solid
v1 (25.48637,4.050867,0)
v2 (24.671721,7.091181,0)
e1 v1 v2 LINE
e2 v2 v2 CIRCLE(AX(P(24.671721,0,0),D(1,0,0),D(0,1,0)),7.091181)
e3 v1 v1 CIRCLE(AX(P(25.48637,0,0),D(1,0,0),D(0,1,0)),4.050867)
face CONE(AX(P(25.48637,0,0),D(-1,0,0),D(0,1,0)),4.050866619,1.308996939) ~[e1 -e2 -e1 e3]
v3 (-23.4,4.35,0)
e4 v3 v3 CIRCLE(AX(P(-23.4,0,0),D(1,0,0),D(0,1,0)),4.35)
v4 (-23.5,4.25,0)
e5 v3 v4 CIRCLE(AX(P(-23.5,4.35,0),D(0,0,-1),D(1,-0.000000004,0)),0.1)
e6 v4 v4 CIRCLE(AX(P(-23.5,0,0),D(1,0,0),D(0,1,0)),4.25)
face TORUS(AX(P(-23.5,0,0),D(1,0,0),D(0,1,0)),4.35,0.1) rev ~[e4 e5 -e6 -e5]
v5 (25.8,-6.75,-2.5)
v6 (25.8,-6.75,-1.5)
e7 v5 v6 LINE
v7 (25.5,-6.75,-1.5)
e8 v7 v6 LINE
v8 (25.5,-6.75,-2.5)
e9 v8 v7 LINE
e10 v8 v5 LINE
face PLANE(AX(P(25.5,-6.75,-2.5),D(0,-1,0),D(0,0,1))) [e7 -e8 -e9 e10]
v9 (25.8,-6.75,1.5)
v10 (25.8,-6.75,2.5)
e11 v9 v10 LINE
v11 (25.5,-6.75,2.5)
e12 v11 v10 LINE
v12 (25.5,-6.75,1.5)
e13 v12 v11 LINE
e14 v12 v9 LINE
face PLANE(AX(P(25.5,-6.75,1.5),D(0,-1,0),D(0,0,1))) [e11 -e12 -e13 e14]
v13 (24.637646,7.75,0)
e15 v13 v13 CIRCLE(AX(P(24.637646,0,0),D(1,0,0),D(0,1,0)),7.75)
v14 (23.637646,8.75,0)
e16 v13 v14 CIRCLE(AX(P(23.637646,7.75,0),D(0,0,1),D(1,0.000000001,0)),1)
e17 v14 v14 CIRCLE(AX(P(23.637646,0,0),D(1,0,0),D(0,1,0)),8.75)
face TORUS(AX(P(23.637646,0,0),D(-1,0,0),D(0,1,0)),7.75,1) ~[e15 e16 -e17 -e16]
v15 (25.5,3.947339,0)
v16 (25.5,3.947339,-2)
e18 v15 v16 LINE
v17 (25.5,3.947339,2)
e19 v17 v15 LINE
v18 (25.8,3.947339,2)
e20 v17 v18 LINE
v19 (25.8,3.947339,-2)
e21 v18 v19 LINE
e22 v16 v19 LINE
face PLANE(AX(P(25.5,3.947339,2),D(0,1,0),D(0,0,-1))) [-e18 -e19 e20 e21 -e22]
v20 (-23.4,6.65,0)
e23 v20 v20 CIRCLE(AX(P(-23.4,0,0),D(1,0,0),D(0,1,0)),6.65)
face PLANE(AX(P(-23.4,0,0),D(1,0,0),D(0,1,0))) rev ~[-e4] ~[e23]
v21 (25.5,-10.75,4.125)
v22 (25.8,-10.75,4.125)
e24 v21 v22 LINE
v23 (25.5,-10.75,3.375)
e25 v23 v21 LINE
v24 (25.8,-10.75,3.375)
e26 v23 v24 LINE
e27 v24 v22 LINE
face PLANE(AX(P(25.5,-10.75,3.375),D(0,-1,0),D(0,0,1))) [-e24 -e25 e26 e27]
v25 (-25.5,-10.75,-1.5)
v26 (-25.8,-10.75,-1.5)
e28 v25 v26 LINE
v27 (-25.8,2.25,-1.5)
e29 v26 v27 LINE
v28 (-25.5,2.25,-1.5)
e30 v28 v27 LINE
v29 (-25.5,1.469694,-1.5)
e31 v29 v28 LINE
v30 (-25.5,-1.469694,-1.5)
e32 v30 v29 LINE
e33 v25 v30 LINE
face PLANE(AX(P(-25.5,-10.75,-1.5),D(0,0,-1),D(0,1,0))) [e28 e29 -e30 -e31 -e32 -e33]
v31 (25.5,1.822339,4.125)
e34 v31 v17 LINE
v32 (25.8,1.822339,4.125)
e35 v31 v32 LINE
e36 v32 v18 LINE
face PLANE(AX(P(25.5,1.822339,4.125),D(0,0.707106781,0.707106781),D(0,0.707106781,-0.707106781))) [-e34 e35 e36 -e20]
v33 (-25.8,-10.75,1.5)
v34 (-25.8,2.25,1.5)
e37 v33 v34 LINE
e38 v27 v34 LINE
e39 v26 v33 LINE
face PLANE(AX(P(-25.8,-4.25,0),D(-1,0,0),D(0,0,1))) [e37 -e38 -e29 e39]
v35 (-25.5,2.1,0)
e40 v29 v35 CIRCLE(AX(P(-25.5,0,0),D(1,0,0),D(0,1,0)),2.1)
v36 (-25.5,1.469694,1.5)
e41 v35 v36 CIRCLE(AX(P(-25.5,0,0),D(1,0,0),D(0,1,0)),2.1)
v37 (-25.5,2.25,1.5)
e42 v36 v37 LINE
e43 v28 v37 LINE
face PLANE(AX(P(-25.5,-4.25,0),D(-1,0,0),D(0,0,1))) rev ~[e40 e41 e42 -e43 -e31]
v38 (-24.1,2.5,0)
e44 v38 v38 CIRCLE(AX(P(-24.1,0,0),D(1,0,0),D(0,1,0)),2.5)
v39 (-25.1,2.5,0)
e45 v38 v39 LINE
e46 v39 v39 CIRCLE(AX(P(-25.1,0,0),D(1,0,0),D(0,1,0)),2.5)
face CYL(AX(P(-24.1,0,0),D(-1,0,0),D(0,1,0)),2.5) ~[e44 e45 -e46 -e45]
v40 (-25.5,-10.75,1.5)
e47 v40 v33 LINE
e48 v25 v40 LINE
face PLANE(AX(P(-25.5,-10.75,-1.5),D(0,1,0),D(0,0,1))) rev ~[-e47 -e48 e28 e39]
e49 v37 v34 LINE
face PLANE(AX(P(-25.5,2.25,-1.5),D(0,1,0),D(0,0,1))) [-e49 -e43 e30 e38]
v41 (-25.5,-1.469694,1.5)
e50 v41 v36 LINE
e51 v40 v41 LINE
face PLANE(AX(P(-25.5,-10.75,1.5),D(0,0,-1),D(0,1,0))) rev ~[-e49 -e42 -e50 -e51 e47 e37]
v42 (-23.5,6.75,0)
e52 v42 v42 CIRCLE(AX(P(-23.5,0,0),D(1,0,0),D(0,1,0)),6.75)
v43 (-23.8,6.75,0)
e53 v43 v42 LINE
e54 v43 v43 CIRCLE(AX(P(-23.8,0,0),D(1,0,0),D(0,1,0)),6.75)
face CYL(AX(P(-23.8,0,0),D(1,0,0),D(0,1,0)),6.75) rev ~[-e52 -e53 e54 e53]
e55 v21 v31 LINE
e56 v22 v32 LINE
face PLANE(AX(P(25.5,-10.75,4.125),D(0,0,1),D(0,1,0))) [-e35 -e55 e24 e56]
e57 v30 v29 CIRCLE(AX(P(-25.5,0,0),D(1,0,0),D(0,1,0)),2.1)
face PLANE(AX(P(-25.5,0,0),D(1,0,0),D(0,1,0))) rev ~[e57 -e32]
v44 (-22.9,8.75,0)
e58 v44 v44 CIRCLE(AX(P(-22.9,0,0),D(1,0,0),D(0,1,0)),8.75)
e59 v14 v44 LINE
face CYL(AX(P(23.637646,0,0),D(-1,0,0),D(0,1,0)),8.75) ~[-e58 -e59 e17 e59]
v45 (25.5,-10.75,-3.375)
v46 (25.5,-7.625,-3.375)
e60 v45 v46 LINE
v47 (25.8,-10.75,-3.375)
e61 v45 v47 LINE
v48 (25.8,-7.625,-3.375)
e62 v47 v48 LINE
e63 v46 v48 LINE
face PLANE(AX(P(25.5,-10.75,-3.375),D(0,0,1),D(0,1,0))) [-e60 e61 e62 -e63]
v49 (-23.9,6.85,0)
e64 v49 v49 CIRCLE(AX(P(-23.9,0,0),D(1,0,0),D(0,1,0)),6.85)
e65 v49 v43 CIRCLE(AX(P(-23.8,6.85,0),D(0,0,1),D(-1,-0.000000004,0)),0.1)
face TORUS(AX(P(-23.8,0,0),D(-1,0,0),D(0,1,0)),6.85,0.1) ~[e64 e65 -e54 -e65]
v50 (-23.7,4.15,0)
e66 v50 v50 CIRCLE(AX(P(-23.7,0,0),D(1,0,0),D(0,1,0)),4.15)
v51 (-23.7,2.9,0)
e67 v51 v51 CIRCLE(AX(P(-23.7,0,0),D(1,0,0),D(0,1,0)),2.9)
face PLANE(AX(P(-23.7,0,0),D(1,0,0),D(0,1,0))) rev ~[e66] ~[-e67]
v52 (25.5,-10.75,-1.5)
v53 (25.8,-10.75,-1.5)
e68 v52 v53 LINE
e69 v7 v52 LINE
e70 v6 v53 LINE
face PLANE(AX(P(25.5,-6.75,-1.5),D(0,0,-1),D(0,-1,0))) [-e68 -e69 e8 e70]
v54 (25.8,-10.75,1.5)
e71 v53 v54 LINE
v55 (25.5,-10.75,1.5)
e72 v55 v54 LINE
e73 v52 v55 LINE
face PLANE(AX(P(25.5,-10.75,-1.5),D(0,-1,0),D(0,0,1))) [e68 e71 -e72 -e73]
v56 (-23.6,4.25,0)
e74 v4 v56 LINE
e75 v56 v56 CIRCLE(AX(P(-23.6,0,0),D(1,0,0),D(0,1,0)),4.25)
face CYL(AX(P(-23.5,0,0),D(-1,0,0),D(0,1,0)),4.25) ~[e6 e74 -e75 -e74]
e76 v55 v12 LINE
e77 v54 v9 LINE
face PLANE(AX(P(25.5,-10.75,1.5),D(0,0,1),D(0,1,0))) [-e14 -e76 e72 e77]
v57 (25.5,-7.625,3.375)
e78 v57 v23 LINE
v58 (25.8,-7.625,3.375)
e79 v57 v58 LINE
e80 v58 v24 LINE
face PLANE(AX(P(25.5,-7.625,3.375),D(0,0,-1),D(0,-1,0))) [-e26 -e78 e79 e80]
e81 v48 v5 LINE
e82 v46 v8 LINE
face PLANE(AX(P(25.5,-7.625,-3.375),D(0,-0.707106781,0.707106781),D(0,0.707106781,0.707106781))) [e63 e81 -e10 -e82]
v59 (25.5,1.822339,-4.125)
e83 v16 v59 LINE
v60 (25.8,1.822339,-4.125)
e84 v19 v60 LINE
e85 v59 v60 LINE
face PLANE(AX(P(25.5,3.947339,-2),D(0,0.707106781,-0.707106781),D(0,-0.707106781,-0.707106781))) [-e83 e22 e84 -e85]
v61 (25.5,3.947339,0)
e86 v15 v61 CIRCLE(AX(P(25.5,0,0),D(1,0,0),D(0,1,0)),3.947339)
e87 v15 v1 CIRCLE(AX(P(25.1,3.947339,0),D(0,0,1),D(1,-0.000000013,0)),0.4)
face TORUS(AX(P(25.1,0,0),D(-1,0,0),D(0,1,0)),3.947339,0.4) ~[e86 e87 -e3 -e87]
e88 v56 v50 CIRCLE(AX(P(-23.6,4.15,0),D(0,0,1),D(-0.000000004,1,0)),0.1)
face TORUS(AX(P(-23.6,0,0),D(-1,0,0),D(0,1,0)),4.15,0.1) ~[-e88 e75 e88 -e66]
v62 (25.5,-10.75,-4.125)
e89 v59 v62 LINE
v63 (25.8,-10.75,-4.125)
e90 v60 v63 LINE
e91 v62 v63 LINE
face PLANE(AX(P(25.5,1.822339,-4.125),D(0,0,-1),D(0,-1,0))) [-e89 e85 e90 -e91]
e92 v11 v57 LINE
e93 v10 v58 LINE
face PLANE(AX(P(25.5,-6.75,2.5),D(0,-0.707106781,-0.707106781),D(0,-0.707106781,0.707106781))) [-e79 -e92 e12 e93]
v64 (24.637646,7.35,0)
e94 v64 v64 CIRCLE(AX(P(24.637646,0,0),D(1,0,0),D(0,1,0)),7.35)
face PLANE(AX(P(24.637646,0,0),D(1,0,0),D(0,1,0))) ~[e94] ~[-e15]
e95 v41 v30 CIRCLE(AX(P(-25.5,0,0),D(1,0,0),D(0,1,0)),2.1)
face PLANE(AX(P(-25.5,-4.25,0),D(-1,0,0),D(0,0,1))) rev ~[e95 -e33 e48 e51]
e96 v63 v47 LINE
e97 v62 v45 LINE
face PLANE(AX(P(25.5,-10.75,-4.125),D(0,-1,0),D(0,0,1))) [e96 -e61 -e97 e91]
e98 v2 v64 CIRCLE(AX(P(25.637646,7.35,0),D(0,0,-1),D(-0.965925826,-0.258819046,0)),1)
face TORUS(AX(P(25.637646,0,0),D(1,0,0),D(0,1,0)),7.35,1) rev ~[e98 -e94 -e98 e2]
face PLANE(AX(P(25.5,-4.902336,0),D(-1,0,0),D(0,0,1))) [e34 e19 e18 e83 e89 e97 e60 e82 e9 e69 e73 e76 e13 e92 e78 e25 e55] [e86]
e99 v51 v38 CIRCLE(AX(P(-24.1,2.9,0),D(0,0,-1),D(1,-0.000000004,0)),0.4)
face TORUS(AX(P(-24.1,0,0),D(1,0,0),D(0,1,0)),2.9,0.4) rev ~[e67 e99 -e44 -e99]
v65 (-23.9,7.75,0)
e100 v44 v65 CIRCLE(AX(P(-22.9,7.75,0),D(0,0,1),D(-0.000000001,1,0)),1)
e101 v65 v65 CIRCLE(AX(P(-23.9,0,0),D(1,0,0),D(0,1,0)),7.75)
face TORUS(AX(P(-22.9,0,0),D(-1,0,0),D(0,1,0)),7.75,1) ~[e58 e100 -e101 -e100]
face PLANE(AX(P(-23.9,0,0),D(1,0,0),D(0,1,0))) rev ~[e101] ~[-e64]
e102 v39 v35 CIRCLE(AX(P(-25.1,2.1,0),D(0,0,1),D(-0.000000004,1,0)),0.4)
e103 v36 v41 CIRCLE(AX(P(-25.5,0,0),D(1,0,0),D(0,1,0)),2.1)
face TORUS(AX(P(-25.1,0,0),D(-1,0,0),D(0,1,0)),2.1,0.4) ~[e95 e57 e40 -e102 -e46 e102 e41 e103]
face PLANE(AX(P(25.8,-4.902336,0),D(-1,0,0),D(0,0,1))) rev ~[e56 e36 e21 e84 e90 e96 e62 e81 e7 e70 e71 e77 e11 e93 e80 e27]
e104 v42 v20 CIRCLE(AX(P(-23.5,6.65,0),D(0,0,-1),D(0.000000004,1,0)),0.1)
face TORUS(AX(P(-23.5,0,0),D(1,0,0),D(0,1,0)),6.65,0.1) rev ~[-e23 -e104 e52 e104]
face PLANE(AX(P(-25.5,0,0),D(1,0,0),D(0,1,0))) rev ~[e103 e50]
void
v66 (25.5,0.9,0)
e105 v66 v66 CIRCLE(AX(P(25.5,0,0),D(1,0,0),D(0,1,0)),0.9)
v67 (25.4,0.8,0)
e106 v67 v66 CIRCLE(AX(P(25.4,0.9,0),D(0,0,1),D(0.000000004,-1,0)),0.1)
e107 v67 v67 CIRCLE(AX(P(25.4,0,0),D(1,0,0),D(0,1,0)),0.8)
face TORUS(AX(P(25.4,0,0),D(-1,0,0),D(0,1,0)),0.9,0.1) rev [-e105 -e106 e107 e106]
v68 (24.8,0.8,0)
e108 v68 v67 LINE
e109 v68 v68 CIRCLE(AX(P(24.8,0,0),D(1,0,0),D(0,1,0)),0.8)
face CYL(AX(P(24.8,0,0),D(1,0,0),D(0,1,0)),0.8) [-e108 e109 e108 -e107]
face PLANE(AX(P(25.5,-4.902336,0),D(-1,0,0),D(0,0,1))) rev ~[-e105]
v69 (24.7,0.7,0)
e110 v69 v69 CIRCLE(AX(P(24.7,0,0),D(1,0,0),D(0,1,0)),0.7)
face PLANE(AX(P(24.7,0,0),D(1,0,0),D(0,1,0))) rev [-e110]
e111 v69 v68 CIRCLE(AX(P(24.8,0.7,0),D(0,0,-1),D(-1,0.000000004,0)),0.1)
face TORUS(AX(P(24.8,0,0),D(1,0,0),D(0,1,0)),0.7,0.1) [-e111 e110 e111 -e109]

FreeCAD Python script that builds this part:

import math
import FreeCAD as App
import Part
import Sketcher
Q = App.Units.Quantity

doc = App.newDocument("Part")
body = doc.addObject("PartDesign::Body", "Body")

# Sketch on XY plane
sketch1 = body.newObject("Sketcher::SketchObject", "Sketch")
sketch1.AttachmentSupport = (doc.getObject("XY_Plane"), [""])
sketch1.MapMode = "FlatFace"
sketch1.addGeometry([
    Part.LineSegment(App.Vector(-25.5, 0, 0), App.Vector(24.7, 0, 0)),  # 0
    Part.LineSegment(App.Vector(24.7, 0, 0), App.Vector(24.7, 0.7, 0)),  # 1
    Part.ArcOfCircle(Part.Circle(App.Vector(24.8, 0.7, 0), App.Vector(0, 0, 1), 0.1), math.radians(90), math.radians(180)),  # 2
    Part.LineSegment(App.Vector(24.8, 0.8, 0), App.Vector(25.4, 0.8, 0)),  # 3
    Part.ArcOfCircle(Part.Circle(App.Vector(25.4, 0.9, 0), App.Vector(0, 0, 1), 0.1), math.radians(-90), math.radians(0)),  # 4
    Part.LineSegment(App.Vector(25.5, 0.9, 0), App.Vector(25.5, 3.95, 0)),  # 5
    Part.ArcOfCircle(Part.Circle(App.Vector(25.1, 3.95, 0), App.Vector(0, 0, 1), 0.4), math.radians(0), math.radians(15)),  # 6
    Part.LineSegment(App.Vector(25.49, 4.05, 0), App.Vector(24.67, 7.09, 0)),  # 7
    Part.ArcOfCircle(Part.Circle(App.Vector(25.64, 7.35, 0), App.Vector(0, 0, 1), 1), math.radians(180), math.radians(195)),  # 8
    Part.LineSegment(App.Vector(24.64, 7.35, 0), App.Vector(24.64, 7.75, 0)),  # 9
    Part.ArcOfCircle(Part.Circle(App.Vector(23.64, 7.75, 0), App.Vector(0, 0, 1), 1), math.radians(0), math.radians(90)),  # 10
    Part.LineSegment(App.Vector(23.64, 8.75, 0), App.Vector(-22.9, 8.75, 0)),  # 11
    Part.ArcOfCircle(Part.Circle(App.Vector(-22.9, 7.75, 0), App.Vector(0, 0, 1), 1), math.radians(90), math.radians(180)),  # 12
    Part.LineSegment(App.Vector(-23.9, 7.75, 0), App.Vector(-23.9, 6.85, 0)),  # 13
    Part.ArcOfCircle(Part.Circle(App.Vector(-23.8, 6.85, 0), App.Vector(0, 0, 1), 0.1), math.radians(180), math.radians(270)),  # 14
    Part.LineSegment(App.Vector(-23.8, 6.75, 0), App.Vector(-23.5, 6.75, 0)),  # 15
    Part.ArcOfCircle(Part.Circle(App.Vector(-23.5, 6.65, 0), App.Vector(0, 0, 1), 0.1), math.radians(0), math.radians(90)),  # 16
    Part.LineSegment(App.Vector(-23.4, 6.65, 0), App.Vector(-23.4, 4.35, 0)),  # 17
    Part.ArcOfCircle(Part.Circle(App.Vector(-23.5, 4.35, 0), App.Vector(0, 0, 1), 0.1), math.radians(-90), math.radians(0)),  # 18
    Part.LineSegment(App.Vector(-23.5, 4.25, 0), App.Vector(-23.6, 4.25, 0)),  # 19
    Part.ArcOfCircle(Part.Circle(App.Vector(-23.6, 4.15, 0), App.Vector(0, 0, 1), 0.1), math.radians(90), math.radians(180)),  # 20
    Part.LineSegment(App.Vector(-23.7, 4.15, 0), App.Vector(-23.7, 2.9, 0)),  # 21
    Part.ArcOfCircle(Part.Circle(App.Vector(-24.1, 2.9, 0), App.Vector(0, 0, 1), 0.4), math.radians(-90), math.radians(0)),  # 22
    Part.LineSegment(App.Vector(-24.1, 2.5, 0), App.Vector(-25.1, 2.5, 0)),  # 23
    Part.ArcOfCircle(Part.Circle(App.Vector(-25.1, 2.1, 0), App.Vector(0, 0, 1), 0.4), math.radians(90), math.radians(180)),  # 24
    Part.LineSegment(App.Vector(-25.5, 2.1, 0), App.Vector(-25.5, 0, 0)),  # 25
], False)
sketch1.addConstraint([
    Sketcher.Constraint("Coincident", 0, 2, 1, 1),
    Sketcher.Constraint("Tangent", 1, 2, 2, 2),
    Sketcher.Constraint("Tangent", 2, 1, 3, 1),
    Sketcher.Constraint("Tangent", 3, 2, 4, 1),
    Sketcher.Constraint("Tangent", 4, 2, 5, 1),
    Sketcher.Constraint("Tangent", 5, 2, 6, 1),
    Sketcher.Constraint("Tangent", 6, 2, 7, 1),
    Sketcher.Constraint("Tangent", 7, 2, 8, 2),
    Sketcher.Constraint("Tangent", 8, 1, 9, 1),
    Sketcher.Constraint("Tangent", 9, 2, 10, 1),
    Sketcher.Constraint("Tangent", 10, 2, 11, 1),
    Sketcher.Constraint("Tangent", 11, 2, 12, 1),
    Sketcher.Constraint("Tangent", 12, 2, 13, 1),
    Sketcher.Constraint("Tangent", 13, 2, 14, 1),
    Sketcher.Constraint("Tangent", 14, 2, 15, 1),
    Sketcher.Constraint("Tangent", 15, 2, 16, 2),
    Sketcher.Constraint("Tangent", 16, 1, 17, 1),
    Sketcher.Constraint("Tangent", 17, 2, 18, 2),
    Sketcher.Constraint("Tangent", 18, 1, 19, 1),
    Sketcher.Constraint("Tangent", 19, 2, 20, 1),
    Sketcher.Constraint("Tangent", 20, 2, 21, 1),
    Sketcher.Constraint("Tangent", 21, 2, 22, 2),
    Sketcher.Constraint("Tangent", 22, 1, 23, 1),
    Sketcher.Constraint("Tangent", 23, 2, 24, 1),
    Sketcher.Constraint("Tangent", 24, 2, 25, 1),
    Sketcher.Constraint("Coincident", 25, 2, 0, 1),
    Sketcher.Constraint("Horizontal", 0),
    Sketcher.Constraint("Vertical", 1),
    Sketcher.Constraint("Horizontal", 3),
    Sketcher.Constraint("Vertical", 5),
    Sketcher.Constraint("Vertical", 9),
    Sketcher.Constraint("Horizontal", 11),
    Sketcher.Constraint("Vertical", 13),
    Sketcher.Constraint("Horizontal", 15),
    Sketcher.Constraint("Vertical", 17),
    Sketcher.Constraint("Horizontal", 19),
    Sketcher.Constraint("Vertical", 21),
    Sketcher.Constraint("Horizontal", 23),
    Sketcher.Constraint("Vertical", 25),
    Sketcher.Constraint("Equal", 2, 4),
    Sketcher.Constraint("Equal", 8, 10),
    Sketcher.Constraint("Equal", 10, 12),
    Sketcher.Constraint("Equal", 4, 14),
    Sketcher.Constraint("Equal", 14, 16),
    Sketcher.Constraint("Equal", 16, 18),
    Sketcher.Constraint("Equal", 18, 20),
    Sketcher.Constraint("Equal", 6, 22),
    Sketcher.Constraint("Equal", 22, 24),
    Sketcher.Constraint("PointOnObject", 0, 2, -1),
    Sketcher.Constraint("Radius", 8, 1.0),
    Sketcher.Constraint("Radius", 2, 0.1),
    Sketcher.Constraint("Radius", 6, 0.4),
    Sketcher.Constraint("DistanceX", 23, 2, 23, 1, 1.0),
    Sketcher.Constraint("Angle", 7, Q("105 deg")),
    Sketcher.Constraint("DistanceX", 0, 1, 0, 2, 50.2),
    Sketcher.Constraint("DistanceX", 3, 1, 3, 2, 0.6),
    Sketcher.Constraint("DistanceX", 15, 1, 15, 2, 0.3),
    Sketcher.Constraint("DistanceX", 19, 2, 19, 1, 0.1),
    Sketcher.Constraint("DistanceY", 1, 1, 1, 2, 0.7),
    Sketcher.Constraint("DistanceY", 9, 1, 9, 2, 0.4),
    Sketcher.Constraint("DistanceY", 13, 2, 13, 1, 0.9),
    Sketcher.Constraint("DistanceY", 17, 2, 17, 1, 2.3),
    Sketcher.Constraint("DistanceY", 25, 2, 25, 1, 2.1),
    Sketcher.Constraint("DistanceY", 21, 2, 21, 1, 1.25),
    Sketcher.Constraint("DistanceX", -1, 1, 2, 3, 24.8),
    Sketcher.Constraint("DistanceY", 5, 1, 5, 2, 3.047339),
])
revolution = body.newObject("PartDesign::Revolution", "Revolution")
revolution.Profile = sketch1
revolution.ReferenceAxis = (sketch1, ["H_Axis"])
revolution.Angle = 360

# Sketch on YZ plane
sketch2 = body.newObject("Sketcher::SketchObject", "Sketch001")
sketch2.AttachmentSupport = (doc.getObject("YZ_Plane"), [""])
sketch2.MapMode = "FlatFace"
sketch2.AttachmentOffset = App.Placement(App.Vector(0, 0, 25.5), App.Rotation())
sketch2.addGeometry([
    Part.LineSegment(App.Vector(3.9, -2, 0), App.Vector(3.9, 2, 0)),  # 0
    Part.LineSegment(App.Vector(3.9, 2, 0), App.Vector(1.8, 4.1, 0)),  # 1
    Part.LineSegment(App.Vector(1.8, 4.1, 0), App.Vector(-10.8, 4.1, 0)),  # 2
    Part.LineSegment(App.Vector(-10.8, 4.1, 0), App.Vector(-10.8, 3.4, 0)),  # 3
    Part.LineSegment(App.Vector(-10.8, 3.4, 0), App.Vector(-7.6, 3.4, 0)),  # 4
    Part.LineSegment(App.Vector(-7.6, 3.4, 0), App.Vector(-6.8, 2.5, 0)),  # 5
    Part.LineSegment(App.Vector(-6.8, 2.5, 0), App.Vector(-6.8, 1.5, 0)),  # 6
    Part.LineSegment(App.Vector(-6.8, 1.5, 0), App.Vector(-10.8, 1.5, 0)),  # 7
    Part.LineSegment(App.Vector(-10.8, 1.5, 0), App.Vector(-10.8, -1.5, 0)),  # 8
    Part.LineSegment(App.Vector(-10.8, -1.5, 0), App.Vector(-6.8, -1.5, 0)),  # 9
    Part.LineSegment(App.Vector(-6.8, -1.5, 0), App.Vector(-6.8, -2.5, 0)),  # 10
    Part.LineSegment(App.Vector(-6.8, -2.5, 0), App.Vector(-7.6, -3.4, 0)),  # 11
    Part.LineSegment(App.Vector(-7.6, -3.4, 0), App.Vector(-10.8, -3.4, 0)),  # 12
    Part.LineSegment(App.Vector(-10.8, -3.4, 0), App.Vector(-10.8, -4.1, 0)),  # 13
    Part.LineSegment(App.Vector(-10.8, -4.1, 0), App.Vector(1.8, -4.1, 0)),  # 14
    Part.LineSegment(App.Vector(1.8, -4.1, 0), App.Vector(3.9, -2, 0)),  # 15
], False)
sketch2.addConstraint([
    Sketcher.Constraint("Coincident", 0, 2, 1, 1),
    Sketcher.Constraint("Coincident", 1, 2, 2, 1),
    Sketcher.Constraint("Coincident", 2, 2, 3, 1),
    Sketcher.Constraint("Coincident", 3, 2, 4, 1),
    Sketcher.Constraint("Coincident", 4, 2, 5, 1),
    Sketcher.Constraint("Coincident", 5, 2, 6, 1),
    Sketcher.Constraint("Coincident", 6, 2, 7, 1),
    Sketcher.Constraint("Coincident", 7, 2, 8, 1),
    Sketcher.Constraint("Coincident", 8, 2, 9, 1),
    Sketcher.Constraint("Coincident", 9, 2, 10, 1),
    Sketcher.Constraint("Coincident", 10, 2, 11, 1),
    Sketcher.Constraint("Coincident", 11, 2, 12, 1),
    Sketcher.Constraint("Coincident", 12, 2, 13, 1),
    Sketcher.Constraint("Coincident", 13, 2, 14, 1),
    Sketcher.Constraint("Coincident", 14, 2, 15, 1),
    Sketcher.Constraint("Coincident", 15, 2, 0, 1),
    Sketcher.Constraint("Vertical", 0),
    Sketcher.Constraint("Horizontal", 2),
    Sketcher.Constraint("Vertical", 3),
    Sketcher.Constraint("Horizontal", 4),
    Sketcher.Constraint("Vertical", 6),
    Sketcher.Constraint("Horizontal", 7),
    Sketcher.Constraint("Vertical", 8),
    Sketcher.Constraint("Horizontal", 9),
    Sketcher.Constraint("Vertical", 10),
    Sketcher.Constraint("Horizontal", 12),
    Sketcher.Constraint("Vertical", 13),
    Sketcher.Constraint("Horizontal", 14),
    Sketcher.Constraint("Symmetric", 6, 2, 9, 2, -1),
    Sketcher.Constraint("Symmetric", 4, 2, 11, 2, -1),
    Sketcher.Constraint("Symmetric", 2, 2, 13, 2, -1),
    Sketcher.Constraint("Parallel", 1, 5),
    Sketcher.Constraint("Perpendicular", 5, 11),
    Sketcher.Constraint("Parallel", 11, 15),
    Sketcher.Constraint("Vertical", 3, 2, 7, 2),
    Sketcher.Constraint("Vertical", 1, 2, 14, 2),
    Sketcher.Constraint("Equal", 9, 0),
    Sketcher.Constraint("Equal", 6, 10),
    Sketcher.Constraint("DistanceX", 7, 2, 7, 1, 4.0),
    Sketcher.Constraint("DistanceY", 6, 2, 6, 1, 1.0),
    Sketcher.Constraint("DistanceY", 8, 2, 8, 1, 3.0),
    Sketcher.Constraint("DistanceY", 3, 2, 3, 1, 0.75),
    Sketcher.Constraint("DistanceX", 4, 1, 4, 2, 3.125),
    Sketcher.Constraint("DistanceX", 2, 2, -1, 1, 10.75),
    Sketcher.Constraint("DistanceX", 2, 2, 2, 1, 12.572339),
])
pad1 = body.newObject("PartDesign::Pad", "Pad")
pad1.Profile = sketch2
pad1.Length = 0.3

# Sketch on YZ plane
sketch3 = body.newObject("Sketcher::SketchObject", "Sketch002")
sketch3.AttachmentSupport = (doc.getObject("YZ_Plane"), [""])
sketch3.MapMode = "FlatFace"
sketch3.AttachmentOffset = App.Placement(App.Vector(0, 0, -25.5), App.Rotation())
sketch3.addGeometry([
    Part.LineSegment(App.Vector(2.2, -1.5, 0), App.Vector(-10.8, -1.5, 0)),
    Part.LineSegment(App.Vector(-10.8, -1.5, 0), App.Vector(-10.8, 1.5, 0)),
    Part.LineSegment(App.Vector(-10.8, 1.5, 0), App.Vector(2.2, 1.5, 0)),
    Part.LineSegment(App.Vector(2.2, 1.5, 0), App.Vector(2.2, -1.5, 0)),
], False)
sketch3.addConstraint([
    Sketcher.Constraint("Coincident", 0, 2, 1, 1),
    Sketcher.Constraint("Coincident", 1, 2, 2, 1),
    Sketcher.Constraint("Coincident", 2, 2, 3, 1),
    Sketcher.Constraint("Coincident", 3, 2, 0, 1),
    Sketcher.Constraint("Horizontal", 0),
    Sketcher.Constraint("Vertical", 1),
    Sketcher.Constraint("Horizontal", 2),
    Sketcher.Constraint("Vertical", 3),
    Sketcher.Constraint("DistanceX", 0, 2, 0, 1, 13.0),
    Sketcher.Constraint("DistanceY", 1, 1, 1, 2, 3.0),
    Sketcher.Constraint("DistanceY", 0, 2, -1, 1, 1.5),
    Sketcher.Constraint("DistanceX", 0, 2, -1, 1, 10.75),
])
pad2 = body.newObject("PartDesign::Pad", "Pad001")
pad2.Profile = sketch3
pad2.Length = 0.3
pad2.Reversed = True

doc.recompute()
